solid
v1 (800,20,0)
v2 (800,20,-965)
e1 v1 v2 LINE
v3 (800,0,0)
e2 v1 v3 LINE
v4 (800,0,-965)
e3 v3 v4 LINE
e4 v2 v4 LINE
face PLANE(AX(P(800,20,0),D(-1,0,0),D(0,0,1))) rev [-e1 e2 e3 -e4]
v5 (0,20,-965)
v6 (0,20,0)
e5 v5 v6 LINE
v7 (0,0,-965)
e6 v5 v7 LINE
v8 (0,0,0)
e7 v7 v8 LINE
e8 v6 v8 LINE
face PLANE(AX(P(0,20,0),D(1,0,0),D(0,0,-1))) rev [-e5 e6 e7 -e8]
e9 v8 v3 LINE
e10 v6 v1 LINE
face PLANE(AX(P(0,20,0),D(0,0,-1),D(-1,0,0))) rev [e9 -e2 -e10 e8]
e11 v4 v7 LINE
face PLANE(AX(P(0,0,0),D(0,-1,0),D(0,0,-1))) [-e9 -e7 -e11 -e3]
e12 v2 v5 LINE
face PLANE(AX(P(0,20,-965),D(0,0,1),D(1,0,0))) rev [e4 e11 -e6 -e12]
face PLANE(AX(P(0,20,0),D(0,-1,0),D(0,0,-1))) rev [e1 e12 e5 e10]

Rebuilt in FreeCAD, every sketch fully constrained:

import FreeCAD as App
import Part
import Sketcher
from FreeCAD import Vector

doc = App.newDocument("Part")
body = doc.addObject("PartDesign::Body", "Body")

sketch1 = doc.addObject("Sketcher::SketchObject", "Sketch")
body.addObject(sketch1)
sketch1.AttachmentSupport = (doc.XZ_Plane, [""])
sketch1.MapMode = "FlatFace"
sketch1.addGeometry([
    Part.LineSegment(Vector(0, -965, 0), Vector(0, 0, 0)),
    Part.LineSegment(Vector(0, 0, 0), Vector(800, 0, 0)),
    Part.LineSegment(Vector(800, 0, 0), Vector(800, -965, 0)),
    Part.LineSegment(Vector(800, -965, 0), Vector(0, -965, 0)),
], False)
sketch1.addConstraint([
    Sketcher.Constraint("Coincident", 0, 2, 1, 1),
    Sketcher.Constraint("Coincident", 1, 2, 2, 1),
    Sketcher.Constraint("Coincident", 2, 2, 3, 1),
    Sketcher.Constraint("Coincident", 3, 2, 0, 1),
    Sketcher.Constraint("Vertical", 0),
    Sketcher.Constraint("Horizontal", 1),
    Sketcher.Constraint("Vertical", 2),
    Sketcher.Constraint("Horizontal", 3),
    Sketcher.Constraint("Coincident", 0, 2, -1, 1),
    Sketcher.Constraint("DistanceX", 1, 1, 1, 2, 800.0),
    Sketcher.Constraint("DistanceY", 0, 1, 0, 2, 965.0),
])
pad1 = doc.addObject("PartDesign::Pad", "Pad")
body.addObject(pad1)
pad1.Profile = sketch1
pad1.Length = 20
pad1.Reversed = True

doc.recompute()
